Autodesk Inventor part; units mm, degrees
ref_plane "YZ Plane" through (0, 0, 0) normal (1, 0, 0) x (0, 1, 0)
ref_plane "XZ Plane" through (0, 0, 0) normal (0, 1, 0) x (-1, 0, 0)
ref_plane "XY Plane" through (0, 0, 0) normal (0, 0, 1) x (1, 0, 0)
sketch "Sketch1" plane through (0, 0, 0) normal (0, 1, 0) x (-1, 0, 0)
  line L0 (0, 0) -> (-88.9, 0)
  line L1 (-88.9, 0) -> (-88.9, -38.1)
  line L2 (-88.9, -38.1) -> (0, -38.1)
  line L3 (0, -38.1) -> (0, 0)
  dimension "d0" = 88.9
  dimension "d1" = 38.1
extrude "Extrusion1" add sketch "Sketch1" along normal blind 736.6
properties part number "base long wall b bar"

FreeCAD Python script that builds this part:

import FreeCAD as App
import Part
import Sketcher
from FreeCAD import Vector
Q = App.Units.Quantity

doc = App.newDocument("Part")
params = doc.addObject("Spreadsheet::Sheet", "Params")
for row, (alias, value) in enumerate([
    ("sketch1_width", "3.5 in"),
    ("sketch1_height", "1.5 in"),
    ("pad1_length", "29 in"),
], start=1):
    params.set(f"A{row}", alias)
    params.set(f"B{row}", "=" + value)
    params.setAlias(f"B{row}", alias)

body = doc.addObject("PartDesign::Body", "Body")

sketch1 = doc.addObject("Sketcher::SketchObject", "Sketch")
body.addObject(sketch1)
sketch1.AttachmentSupport = (doc.XZ_Plane, [""])
sketch1.MapMode = "FlatFace"
sketch1.addGeometry([
    Part.LineSegment(Vector(0, -38, 0), Vector(0, 0, 0)),
    Part.LineSegment(Vector(0, 0, 0), Vector(89, 0, 0)),
    Part.LineSegment(Vector(89, 0, 0), Vector(89, -38, 0)),
    Part.LineSegment(Vector(89, -38, 0), Vector(0, -38, 0)),
], False)
sketch1.addConstraint([
    Sketcher.Constraint("Coincident", 0, 2, 1, 1),
    Sketcher.Constraint("Coincident", 1, 2, 2, 1),
    Sketcher.Constraint("Coincident", 2, 2, 3, 1),
    Sketcher.Constraint("Coincident", 3, 2, 0, 1),
    Sketcher.Constraint("Vertical", 0),
    Sketcher.Constraint("Horizontal", 1),
    Sketcher.Constraint("Vertical", 2),
    Sketcher.Constraint("Horizontal", 3),
    Sketcher.Constraint("Coincident", 0, 2, -1, 1),
    Sketcher.Constraint("DistanceX", 1, 1, 1, 2, Q("3.5 in")),
    Sketcher.Constraint("DistanceY", 0, 1, 0, 2, Q("1.5 in")),
])
sketch1.setExpression("Constraints[9]", "Params.sketch1_width")
sketch1.setExpression("Constraints[10]", "Params.sketch1_height")
pad1 = doc.addObject("PartDesign::Pad", "Pad")
body.addObject(pad1)
pad1.Profile = sketch1
pad1.setExpression("Length", "Params.pad1_length")
pad1.Reversed = True

doc.recompute()
